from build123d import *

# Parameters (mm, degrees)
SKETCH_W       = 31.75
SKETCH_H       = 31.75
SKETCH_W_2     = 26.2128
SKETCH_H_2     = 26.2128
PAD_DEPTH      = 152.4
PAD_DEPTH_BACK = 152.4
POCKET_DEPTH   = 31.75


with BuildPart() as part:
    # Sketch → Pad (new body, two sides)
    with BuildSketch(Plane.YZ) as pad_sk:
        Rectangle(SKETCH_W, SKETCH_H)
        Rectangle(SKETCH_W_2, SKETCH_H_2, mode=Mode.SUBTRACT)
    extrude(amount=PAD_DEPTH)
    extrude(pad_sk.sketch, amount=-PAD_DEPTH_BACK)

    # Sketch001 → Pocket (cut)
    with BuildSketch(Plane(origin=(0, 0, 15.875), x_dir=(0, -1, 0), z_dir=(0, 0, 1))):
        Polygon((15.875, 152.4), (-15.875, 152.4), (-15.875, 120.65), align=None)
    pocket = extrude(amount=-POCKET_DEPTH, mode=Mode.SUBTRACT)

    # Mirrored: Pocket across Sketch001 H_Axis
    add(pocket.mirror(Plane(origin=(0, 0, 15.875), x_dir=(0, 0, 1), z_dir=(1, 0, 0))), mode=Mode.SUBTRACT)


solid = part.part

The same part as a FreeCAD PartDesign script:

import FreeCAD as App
import Part
import Sketcher

V = App.Vector
Q = App.Units.Quantity

doc = App.newDocument("Part")
body = doc.addObject("PartDesign::Body", "Body")

# Sketch on YZ plane
sketch1 = body.newObject("Sketcher::SketchObject", "Sketch")
sketch1.AttachmentSupport = (doc.getObject("YZ_Plane"), [""])
sketch1.MapMode = "FlatFace"
sketch1.addGeometry([
    Part.LineSegment(V(-15.875, 15.875, 0), V(-15.875, -15.875, 0)),  # 0
    Part.LineSegment(V(-15.875, -15.875, 0), V(15.875, -15.875, 0)),  # 1
    Part.LineSegment(V(15.875, -15.875, 0), V(15.875, 15.875, 0)),  # 2
    Part.LineSegment(V(15.875, 15.875, 0), V(-15.875, 15.875, 0)),  # 3
    Part.LineSegment(V(13.1064, -13.1064, 0), V(-13.1064, -13.1064, 0)),  # 4
    Part.LineSegment(V(-13.1064, -13.1064, 0), V(-13.1064, 13.1064, 0)),  # 5
    Part.LineSegment(V(-13.1064, 13.1064, 0), V(13.1064, 13.1064, 0)),  # 6
    Part.LineSegment(V(13.1064, 13.1064, 0), V(13.1064, -13.1064, 0)),  # 7
], False)
sketch1.addConstraint([
    Sketcher.Constraint("Coincident", 0, 2, 1, 1),
    Sketcher.Constraint("Coincident", 1, 2, 2, 1),
    Sketcher.Constraint("Coincident", 2, 2, 3, 1),
    Sketcher.Constraint("Coincident", 3, 2, 0, 1),
    Sketcher.Constraint("Coincident", 4, 2, 5, 1),
    Sketcher.Constraint("Coincident", 5, 2, 6, 1),
    Sketcher.Constraint("Coincident", 6, 2, 7, 1),
    Sketcher.Constraint("Coincident", 7, 2, 4, 1),
    Sketcher.Constraint("Vertical", 0),
    Sketcher.Constraint("Horizontal", 1),
    Sketcher.Constraint("Vertical", 2),
    Sketcher.Constraint("Horizontal", 3),
    Sketcher.Constraint("Horizontal", 4),
    Sketcher.Constraint("Vertical", 5),
    Sketcher.Constraint("Horizontal", 6),
    Sketcher.Constraint("Vertical", 7),
    Sketcher.Constraint("Symmetric", 0, 2, 2, 2, -1, 1),
    Sketcher.Constraint("Symmetric", 4, 2, 6, 2, -1, 1),
    Sketcher.Constraint("Equal", 3, 0),
    Sketcher.Constraint("Equal", 6, 5),
    Sketcher.Constraint("DistanceX", 1, 1, 1, 2, Q("1.25 in")),
    Sketcher.Constraint("DistanceX", 4, 2, 4, 1, Q("1.032 in")),
])
pad1 = body.newObject("PartDesign::Pad", "Pad")
pad1.Profile = sketch1
pad1.Type = "TwoLengths"
pad1.Length = Q("6 in")
pad1.Length2 = Q("6 in")

# Sketch on XY plane
sketch2 = body.newObject("Sketcher::SketchObject", "Sketch001")
sketch2.AttachmentSupport = (doc.getObject("XY_Plane"), [""])
sketch2.MapMode = "FlatFace"
sketch2.AttachmentOffset = App.Placement(V(0, 0, 0.625 * 25.4), App.Rotation())
sketch2.addGeometry([
    Part.LineSegment(V(152.4, -15.875, 0), V(152.4, 15.875, 0)),
    Part.LineSegment(V(152.4, 15.875, 0), V(120.65, 15.875, 0)),
    Part.LineSegment(V(120.65, 15.875, 0), V(152.4, -15.875, 0)),
], False)
sketch2.addConstraint([
    Sketcher.Constraint("Coincident", 0, 2, 1, 1),
    Sketcher.Constraint("Coincident", 1, 2, 2, 1),
    Sketcher.Constraint("Coincident", 2, 2, 0, 1),
    Sketcher.Constraint("Vertical", 0),
    Sketcher.Constraint("Horizontal", 1),
    Sketcher.Constraint("Equal", 1, 0),
    Sketcher.Constraint("DistanceX", -1, 1, 0, 2, Q("6 in")),
    Sketcher.Constraint("DistanceX", 1, 2, 1, 1, Q("1.25 in")),
    Sketcher.Constraint("DistanceY", -1, 1, 0, 2, Q("0.625 in")),
])
pocket1 = body.newObject("PartDesign::Pocket", "Pocket")
pocket1.Profile = sketch2
pocket1.Length = Q("1.25 in")
doc.recompute()

mirrored = body.newObject("PartDesign::Mirrored", "Mirrored")
mirrored.Originals = [pocket1]
mirrored.MirrorPlane = (doc.getObject("YZ_Plane"), [""])
body.Tip = mirrored

doc.recompute()
